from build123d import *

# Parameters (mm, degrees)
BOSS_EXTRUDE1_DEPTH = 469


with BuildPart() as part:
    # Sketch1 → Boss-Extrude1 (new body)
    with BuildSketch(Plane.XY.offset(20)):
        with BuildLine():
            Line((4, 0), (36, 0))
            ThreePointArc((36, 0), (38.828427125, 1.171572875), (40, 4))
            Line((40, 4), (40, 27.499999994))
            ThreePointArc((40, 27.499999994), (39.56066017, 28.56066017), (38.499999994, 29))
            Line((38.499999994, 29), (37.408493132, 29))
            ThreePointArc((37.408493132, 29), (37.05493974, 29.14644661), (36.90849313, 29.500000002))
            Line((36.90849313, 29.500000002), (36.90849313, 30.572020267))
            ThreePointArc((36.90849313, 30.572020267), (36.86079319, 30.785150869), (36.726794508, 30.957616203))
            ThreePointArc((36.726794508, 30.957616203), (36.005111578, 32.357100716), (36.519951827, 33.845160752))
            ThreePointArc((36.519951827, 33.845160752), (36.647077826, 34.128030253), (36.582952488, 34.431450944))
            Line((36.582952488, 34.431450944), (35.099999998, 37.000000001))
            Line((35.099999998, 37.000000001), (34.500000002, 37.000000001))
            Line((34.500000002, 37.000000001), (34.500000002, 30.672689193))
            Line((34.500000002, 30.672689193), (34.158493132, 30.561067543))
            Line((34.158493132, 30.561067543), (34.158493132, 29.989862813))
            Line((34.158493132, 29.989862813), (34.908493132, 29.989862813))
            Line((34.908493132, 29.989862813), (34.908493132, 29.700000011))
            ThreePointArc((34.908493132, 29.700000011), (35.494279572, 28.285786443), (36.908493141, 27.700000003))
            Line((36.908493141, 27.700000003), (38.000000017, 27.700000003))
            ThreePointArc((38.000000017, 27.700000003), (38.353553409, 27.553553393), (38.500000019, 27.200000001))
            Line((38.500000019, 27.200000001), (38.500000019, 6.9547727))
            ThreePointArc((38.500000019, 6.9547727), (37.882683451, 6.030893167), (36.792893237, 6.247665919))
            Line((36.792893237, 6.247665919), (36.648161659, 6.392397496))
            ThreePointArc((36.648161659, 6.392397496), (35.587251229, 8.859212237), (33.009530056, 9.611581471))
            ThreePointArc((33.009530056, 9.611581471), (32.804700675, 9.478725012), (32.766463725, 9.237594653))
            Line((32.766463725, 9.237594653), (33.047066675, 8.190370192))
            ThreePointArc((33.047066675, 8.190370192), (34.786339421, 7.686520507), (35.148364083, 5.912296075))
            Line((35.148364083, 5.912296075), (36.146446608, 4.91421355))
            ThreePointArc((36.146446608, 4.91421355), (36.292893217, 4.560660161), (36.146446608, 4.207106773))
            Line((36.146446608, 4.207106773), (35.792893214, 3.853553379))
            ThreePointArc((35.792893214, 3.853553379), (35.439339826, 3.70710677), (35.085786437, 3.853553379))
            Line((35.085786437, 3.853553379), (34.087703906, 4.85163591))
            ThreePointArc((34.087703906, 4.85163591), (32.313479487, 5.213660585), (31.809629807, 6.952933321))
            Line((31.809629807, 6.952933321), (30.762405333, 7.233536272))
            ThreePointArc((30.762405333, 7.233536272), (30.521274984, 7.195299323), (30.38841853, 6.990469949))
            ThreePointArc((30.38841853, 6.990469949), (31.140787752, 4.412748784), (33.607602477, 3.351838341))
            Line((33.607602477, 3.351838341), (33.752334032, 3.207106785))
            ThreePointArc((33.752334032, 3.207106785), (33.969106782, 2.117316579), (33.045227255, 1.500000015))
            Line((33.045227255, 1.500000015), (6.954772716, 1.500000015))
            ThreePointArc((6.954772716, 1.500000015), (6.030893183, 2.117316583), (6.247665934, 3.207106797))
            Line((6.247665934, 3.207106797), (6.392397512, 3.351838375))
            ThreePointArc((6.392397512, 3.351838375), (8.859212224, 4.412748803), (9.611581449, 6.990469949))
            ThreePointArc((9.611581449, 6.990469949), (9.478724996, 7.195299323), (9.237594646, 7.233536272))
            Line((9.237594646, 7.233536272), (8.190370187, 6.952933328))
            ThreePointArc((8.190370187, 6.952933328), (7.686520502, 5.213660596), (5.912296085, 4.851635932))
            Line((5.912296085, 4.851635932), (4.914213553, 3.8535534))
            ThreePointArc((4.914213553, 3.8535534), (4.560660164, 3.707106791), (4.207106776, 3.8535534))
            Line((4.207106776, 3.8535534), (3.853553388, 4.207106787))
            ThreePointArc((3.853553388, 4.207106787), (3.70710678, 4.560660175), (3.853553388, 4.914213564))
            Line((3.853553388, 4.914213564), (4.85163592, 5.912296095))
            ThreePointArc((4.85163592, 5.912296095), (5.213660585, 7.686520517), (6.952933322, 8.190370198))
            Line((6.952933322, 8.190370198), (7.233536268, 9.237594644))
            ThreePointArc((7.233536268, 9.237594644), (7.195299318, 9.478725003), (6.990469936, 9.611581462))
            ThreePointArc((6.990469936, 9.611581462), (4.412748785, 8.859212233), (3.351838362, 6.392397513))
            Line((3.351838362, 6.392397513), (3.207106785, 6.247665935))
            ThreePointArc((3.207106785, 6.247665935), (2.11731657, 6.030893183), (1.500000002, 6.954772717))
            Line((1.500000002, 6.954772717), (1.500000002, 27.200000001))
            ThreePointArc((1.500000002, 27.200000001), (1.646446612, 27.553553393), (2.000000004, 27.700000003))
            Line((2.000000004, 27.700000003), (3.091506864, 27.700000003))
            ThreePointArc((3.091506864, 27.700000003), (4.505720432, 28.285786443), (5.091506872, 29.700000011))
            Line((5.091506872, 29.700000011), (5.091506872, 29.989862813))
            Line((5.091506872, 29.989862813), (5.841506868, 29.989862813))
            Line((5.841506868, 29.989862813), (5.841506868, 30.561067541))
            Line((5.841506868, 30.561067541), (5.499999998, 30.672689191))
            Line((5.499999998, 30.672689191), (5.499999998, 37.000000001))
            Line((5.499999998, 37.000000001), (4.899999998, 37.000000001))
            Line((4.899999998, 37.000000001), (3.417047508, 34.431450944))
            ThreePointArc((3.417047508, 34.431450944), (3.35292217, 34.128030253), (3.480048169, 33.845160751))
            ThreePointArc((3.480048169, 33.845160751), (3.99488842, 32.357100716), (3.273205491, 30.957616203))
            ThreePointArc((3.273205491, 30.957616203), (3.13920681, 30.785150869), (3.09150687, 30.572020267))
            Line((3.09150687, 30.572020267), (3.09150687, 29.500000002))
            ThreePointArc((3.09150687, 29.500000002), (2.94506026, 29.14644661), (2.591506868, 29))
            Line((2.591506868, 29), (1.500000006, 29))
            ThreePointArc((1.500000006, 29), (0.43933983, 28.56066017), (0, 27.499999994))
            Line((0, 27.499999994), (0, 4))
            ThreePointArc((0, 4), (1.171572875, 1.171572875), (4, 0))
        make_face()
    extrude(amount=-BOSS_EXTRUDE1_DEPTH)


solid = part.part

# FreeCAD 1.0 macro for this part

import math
import FreeCAD as App
import Part
import Sketcher
from FreeCAD import Vector
Q = App.Units.Quantity

doc = App.newDocument("Part")
body = doc.addObject("PartDesign::Body", "Body")

sketch1 = body.newObject("Sketcher::SketchObject", "Sketch")
sketch1.AttachmentSupport = (doc.getObject("XY_Plane"), [""])
sketch1.MapMode = "FlatFace"
sketch1.AttachmentOffset = App.Placement(Vector(0, 0, 20), App.Rotation())
sketch1.addGeometry([
    Part.LineSegment(Vector(4, 0, 0), Vector(36, 0, 0)),
    Part.ArcOfCircle(Part.Circle(Vector(36, 4, 0), Vector(0, 0, 1), 4), math.radians(-90), math.radians(0)),
    Part.LineSegment(Vector(40, 4, 0), Vector(40, 27.5, 0)),
    Part.ArcOfCircle(Part.Circle(Vector(38.5, 27.5, 0), Vector(0, 0, 1), 1.5), math.radians(0), math.radians(90)),
    Part.LineSegment(Vector(38.5, 29, 0), Vector(37.41, 29, 0)),
    Part.ArcOfCircle(Part.Circle(Vector(37.41, 29.5, 0), Vector(0, 0, 1), 0.5), math.radians(180), math.radians(270)),
    Part.LineSegment(Vector(36.91, 29.5, 0), Vector(36.91, 30.57, 0)),
    Part.ArcOfCircle(Part.Circle(Vector(36.41, 30.57, 0), Vector(0, 0, 1), 0.5), math.radians(0), math.radians(50)),
    Part.ArcOfCircle(Part.Circle(Vector(38, 32.5, 0), Vector(0, 0, 1), 2), math.radians(138), math.radians(230)),
    Part.ArcOfCircle(Part.Circle(Vector(36.15, 34.18, 0), Vector(0, 0, 1), 0.5), math.radians(-42), math.radians(30)),
    Part.LineSegment(Vector(36.58, 34.43, 0), Vector(35.1, 37, 0)),
    Part.LineSegment(Vector(35.1, 37, 0), Vector(34.5, 37, 0)),
    Part.LineSegment(Vector(34.5, 37, 0), Vector(34.5, 30.67, 0)),
    Part.LineSegment(Vector(34.5, 30.67, 0), Vector(34.16, 30.56, 0)),
    Part.LineSegment(Vector(34.16, 30.56, 0), Vector(34.16, 29.99, 0)),
    Part.LineSegment(Vector(34.16, 29.99, 0), Vector(34.91, 29.99, 0)),
    Part.LineSegment(Vector(34.91, 29.99, 0), Vector(34.91, 29.7, 0)),
    Part.ArcOfCircle(Part.Circle(Vector(36.91, 29.7, 0), Vector(0, 0, 1), 2), math.radians(180), math.radians(270)),
    Part.LineSegment(Vector(36.91, 27.7, 0), Vector(38, 27.7, 0)),
    Part.ArcOfCircle(Part.Circle(Vector(38, 27.2, 0), Vector(0, 0, 1), 0.5), math.radians(0), math.radians(90)),
    Part.LineSegment(Vector(38.5, 27.2, 0), Vector(38.5, 6.95, 0)),
    Part.ArcOfCircle(Part.Circle(Vector(37.5, 6.95, 0), Vector(0, 0, 1), 1), math.radians(-135), math.radians(0)),
    Part.LineSegment(Vector(36.79, 6.25, 0), Vector(36.65, 6.39, 0)),
    Part.ArcOfCircle(Part.Circle(Vector(33.5, 6.5, 0), Vector(0, 0, 1), 3.15), math.radians(-2), math.radians(99)),
    Part.ArcOfCircle(Part.Circle(Vector(33.06, 9.32, 0), Vector(0, 0, 1), 0.3), math.radians(99), math.radians(195)),
    Part.LineSegment(Vector(32.77, 9.24, 0), Vector(33.05, 8.19, 0)),
    Part.ArcOfCircle(Part.Circle(Vector(33.5, 6.5, 0), Vector(0, 0, 1), 1.75), math.radians(-20), math.radians(105)),
    Part.LineSegment(Vector(35.15, 5.91, 0), Vector(36.15, 4.91, 0)),
    Part.ArcOfCircle(Part.Circle(Vector(35.79, 4.56, 0), Vector(0, 0, 1), 0.5), math.radians(-45), math.radians(45)),
    Part.LineSegment(Vector(36.15, 4.21, 0), Vector(35.79, 3.85, 0)),
    Part.ArcOfCircle(Part.Circle(Vector(35.44, 4.21, 0), Vector(0, 0, 1), 0.5), math.radians(-135), math.radians(-45)),
    Part.LineSegment(Vector(35.09, 3.85, 0), Vector(34.09, 4.85, 0)),
    Part.ArcOfCircle(Part.Circle(Vector(33.5, 6.5, 0), Vector(0, 0, 1), 1.75), math.radians(165), math.radians(290)),
    Part.LineSegment(Vector(31.81, 6.95, 0), Vector(30.76, 7.23, 0)),
    Part.ArcOfCircle(Part.Circle(Vector(30.68, 6.94, 0), Vector(0, 0, 1), 0.3), math.radians(75), math.radians(171)),
    Part.ArcOfCircle(Part.Circle(Vector(33.5, 6.5, 0), Vector(0, 0, 1), 3.15), math.radians(171), math.radians(272)),
    Part.LineSegment(Vector(33.61, 3.35, 0), Vector(33.75, 3.21, 0)),
    Part.ArcOfCircle(Part.Circle(Vector(33.05, 2.5, 0), Vector(0, 0, 1), 1), math.radians(-90), math.radians(45)),
    Part.LineSegment(Vector(33.05, 1.5, 0), Vector(6.95, 1.5, 0)),
    Part.ArcOfCircle(Part.Circle(Vector(6.95, 2.5, 0), Vector(0, 0, 1), 1), math.radians(135), math.radians(270)),
    Part.LineSegment(Vector(6.25, 3.21, 0), Vector(6.39, 3.35, 0)),
    Part.ArcOfCircle(Part.Circle(Vector(6.5, 6.5, 0), Vector(0, 0, 1), 3.15), math.radians(-92), math.radians(9)),
    Part.ArcOfCircle(Part.Circle(Vector(9.32, 6.94, 0), Vector(0, 0, 1), 0.3), math.radians(9), math.radians(105)),
    Part.LineSegment(Vector(9.24, 7.23, 0), Vector(8.19, 6.95, 0)),
    Part.ArcOfCircle(Part.Circle(Vector(6.5, 6.5, 0), Vector(0, 0, 1), 1.75), math.radians(-110), math.radians(15)),
    Part.LineSegment(Vector(5.91, 4.85, 0), Vector(4.91, 3.85, 0)),
    Part.ArcOfCircle(Part.Circle(Vector(4.56, 4.21, 0), Vector(0, 0, 1), 0.5), math.radians(-135), math.radians(-45)),
    Part.LineSegment(Vector(4.21, 3.85, 0), Vector(3.85, 4.21, 0)),
    Part.ArcOfCircle(Part.Circle(Vector(4.21, 4.56, 0), Vector(0, 0, 1), 0.5), math.radians(135), math.radians(225)),
    Part.LineSegment(Vector(3.85, 4.91, 0), Vector(4.85, 5.91, 0)),
    Part.ArcOfCircle(Part.Circle(Vector(6.5, 6.5, 0), Vector(0, 0, 1), 1.75), math.radians(75), math.radians(200)),
    Part.LineSegment(Vector(6.95, 8.19, 0), Vector(7.23, 9.24, 0)),
    Part.ArcOfCircle(Part.Circle(Vector(6.94, 9.32, 0), Vector(0, 0, 1), 0.3), math.radians(-15), math.radians(81)),
    Part.ArcOfCircle(Part.Circle(Vector(6.5, 6.5, 0), Vector(0, 0, 1), 3.15), math.radians(81), math.radians(182)),
    Part.LineSegment(Vector(3.35, 6.39, 0), Vector(3.21, 6.25, 0)),
    Part.ArcOfCircle(Part.Circle(Vector(2.5, 6.95, 0), Vector(0, 0, 1), 1), math.radians(180), math.radians(315)),
    Part.LineSegment(Vector(1.5, 6.95, 0), Vector(1.5, 27.2, 0)),
    Part.ArcOfCircle(Part.Circle(Vector(2, 27.2, 0), Vector(0, 0, 1), 0.5), math.radians(90), math.radians(180)),
    Part.LineSegment(Vector(2, 27.7, 0), Vector(3.09, 27.7, 0)),
    Part.ArcOfCircle(Part.Circle(Vector(3.09, 29.7, 0), Vector(0, 0, 1), 2), math.radians(-90), math.radians(0)),
    Part.LineSegment(Vector(5.09, 29.7, 0), Vector(5.09, 29.99, 0)),
    Part.LineSegment(Vector(5.09, 29.99, 0), Vector(5.84, 29.99, 0)),
    Part.LineSegment(Vector(5.84, 29.99, 0), Vector(5.84, 30.56, 0)),
    Part.LineSegment(Vector(5.84, 30.56, 0), Vector(5.5, 30.67, 0)),
    Part.LineSegment(Vector(5.5, 30.67, 0), Vector(5.5, 37, 0)),
    Part.LineSegment(Vector(5.5, 37, 0), Vector(4.9, 37, 0)),
    Part.LineSegment(Vector(4.9, 37, 0), Vector(3.42, 34.43, 0)),
    Part.ArcOfCircle(Part.Circle(Vector(3.85, 34.18, 0), Vector(0, 0, 1), 0.5), math.radians(150), math.radians(222)),
    Part.ArcOfCircle(Part.Circle(Vector(2, 32.5, 0), Vector(0, 0, 1), 2), math.radians(-50), math.radians(42)),
    Part.ArcOfCircle(Part.Circle(Vector(3.59, 30.57, 0), Vector(0, 0, 1), 0.5), math.radians(130), math.radians(180)),
    Part.LineSegment(Vector(3.09, 30.57, 0), Vector(3.09, 29.5, 0)),
    Part.ArcOfCircle(Part.Circle(Vector(2.59, 29.5, 0), Vector(0, 0, 1), 0.5), math.radians(-90), math.radians(0)),
    Part.LineSegment(Vector(2.59, 29, 0), Vector(1.5, 29, 0)),
    Part.ArcOfCircle(Part.Circle(Vector(1.5, 27.5, 0), Vector(0, 0, 1), 1.5), math.radians(90), math.radians(180)),
    Part.LineSegment(Vector(0, 27.5, 0), Vector(0, 4, 0)),
    Part.ArcOfCircle(Part.Circle(Vector(4, 4, 0), Vector(0, 0, 1), 4), math.radians(180), math.radians(270)),
], False)
sketch1.addConstraint([
    Sketcher.Constraint("Tangent", 0, 2, 1, 1),
    Sketcher.Constraint("Tangent", 1, 2, 2, 1),
    Sketcher.Constraint("Tangent", 2, 2, 3, 1),
    Sketcher.Constraint("Tangent", 3, 2, 4, 1),
    Sketcher.Constraint("Tangent", 4, 2, 5, 2),
    Sketcher.Constraint("Tangent", 5, 1, 6, 1),
    Sketcher.Constraint("Tangent", 6, 2, 7, 1),
    Sketcher.Constraint("Tangent", 7, 2, 8, 2),
    Sketcher.Constraint("Tangent", 8, 1, 9, 1),
    Sketcher.Constraint("Tangent", 9, 2, 10, 1),
    Sketcher.Constraint("Coincident", 10, 2, 11, 1),
    Sketcher.Constraint("Coincident", 11, 2, 12, 1),
    Sketcher.Constraint("Coincident", 12, 2, 13, 1),
    Sketcher.Constraint("Coincident", 13, 2, 14, 1),
    Sketcher.Constraint("Coincident", 14, 2, 15, 1),
    Sketcher.Constraint("Coincident", 15, 2, 16, 1),
    Sketcher.Constraint("Tangent", 16, 2, 17, 1),
    Sketcher.Constraint("Tangent", 17, 2, 18, 1),
    Sketcher.Constraint("Tangent", 18, 2, 19, 2),
    Sketcher.Constraint("Tangent", 19, 1, 20, 1),
    Sketcher.Constraint("Tangent", 20, 2, 21, 2),
    Sketcher.Constraint("Tangent", 21, 1, 22, 1),
    Sketcher.Constraint("Coincident", 22, 2, 23, 1),
    Sketcher.Constraint("Tangent", 23, 2, 24, 1),
    Sketcher.Constraint("Tangent", 24, 2, 25, 1),
    Sketcher.Constraint("Coincident", 25, 2, 26, 2),
    Sketcher.Constraint("Coincident", 26, 1, 27, 1),
    Sketcher.Constraint("Tangent", 27, 2, 28, 2),
    Sketcher.Constraint("Tangent", 28, 1, 29, 1),
    Sketcher.Constraint("Tangent", 29, 2, 30, 2),
    Sketcher.Constraint("Tangent", 30, 1, 31, 1),
    Sketcher.Constraint("Coincident", 31, 2, 32, 2),
    Sketcher.Constraint("Coincident", 32, 1, 33, 1),
    Sketcher.Constraint("Tangent", 33, 2, 34, 1),
    Sketcher.Constraint("Tangent", 34, 2, 35, 1),
    Sketcher.Constraint("Coincident", 35, 2, 36, 1),
    Sketcher.Constraint("Tangent", 36, 2, 37, 2),
    Sketcher.Constraint("Tangent", 37, 1, 38, 1),
    Sketcher.Constraint("Tangent", 38, 2, 39, 2),
    Sketcher.Constraint("Tangent", 39, 1, 40, 1),
    Sketcher.Constraint("Coincident", 40, 2, 41, 1),
    Sketcher.Constraint("Tangent", 41, 2, 42, 1),
    Sketcher.Constraint("Tangent", 42, 2, 43, 1),
    Sketcher.Constraint("Coincident", 43, 2, 44, 2),
    Sketcher.Constraint("Coincident", 44, 1, 45, 1),
    Sketcher.Constraint("Tangent", 45, 2, 46, 2),
    Sketcher.Constraint("Tangent", 46, 1, 47, 1),
    Sketcher.Constraint("Tangent", 47, 2, 48, 2),
    Sketcher.Constraint("Tangent", 48, 1, 49, 1),
    Sketcher.Constraint("Coincident", 49, 2, 50, 2),
    Sketcher.Constraint("Coincident", 50, 1, 51, 1),
    Sketcher.Constraint("Tangent", 51, 2, 52, 1),
    Sketcher.Constraint("Tangent", 52, 2, 53, 1),
    Sketcher.Constraint("Coincident", 53, 2, 54, 1),
    Sketcher.Constraint("Tangent", 54, 2, 55, 2),
    Sketcher.Constraint("Tangent", 55, 1, 56, 1),
    Sketcher.Constraint("Tangent", 56, 2, 57, 2),
    Sketcher.Constraint("Tangent", 57, 1, 58, 1),
    Sketcher.Constraint("Tangent", 58, 2, 59, 1),
    Sketcher.Constraint("Tangent", 59, 2, 60, 1),
    Sketcher.Constraint("Coincident", 60, 2, 61, 1),
    Sketcher.Constraint("Coincident", 61, 2, 62, 1),
    Sketcher.Constraint("Coincident", 62, 2, 63, 1),
    Sketcher.Constraint("Coincident", 63, 2, 64, 1),
    Sketcher.Constraint("Coincident", 64, 2, 65, 1),
    Sketcher.Constraint("Coincident", 65, 2, 66, 1),
    Sketcher.Constraint("Tangent", 66, 2, 67, 1),
    Sketcher.Constraint("Tangent", 67, 2, 68, 2),
    Sketcher.Constraint("Tangent", 68, 1, 69, 1),
    Sketcher.Constraint("Tangent", 69, 2, 70, 1),
    Sketcher.Constraint("Tangent", 70, 2, 71, 2),
    Sketcher.Constraint("Tangent", 71, 1, 72, 1),
    Sketcher.Constraint("Tangent", 72, 2, 73, 1),
    Sketcher.Constraint("Tangent", 73, 2, 74, 1),
    Sketcher.Constraint("Tangent", 74, 2, 75, 1),
    Sketcher.Constraint("Tangent", 75, 2, 0, 1),
    Sketcher.Constraint("Horizontal", 0),
    Sketcher.Constraint("Vertical", 2),
    Sketcher.Constraint("Horizontal", 4),
    Sketcher.Constraint("Vertical", 6),
    Sketcher.Constraint("Horizontal", 11),
    Sketcher.Constraint("Vertical", 12),
    Sketcher.Constraint("Vertical", 14),
    Sketcher.Constraint("Horizontal", 15),
    Sketcher.Constraint("Vertical", 16),
    Sketcher.Constraint("Horizontal", 18),
    Sketcher.Constraint("Vertical", 20),
    Sketcher.Constraint("Horizontal", 38),
    Sketcher.Constraint("Vertical", 56),
    Sketcher.Constraint("Horizontal", 58),
    Sketcher.Constraint("Vertical", 60),
    Sketcher.Constraint("Horizontal", 61),
    Sketcher.Constraint("Vertical", 62),
    Sketcher.Constraint("Vertical", 64),
    Sketcher.Constraint("Horizontal", 65),
    Sketcher.Constraint("Vertical", 70),
    Sketcher.Constraint("Horizontal", 72),
    Sketcher.Constraint("Vertical", 74),
    Sketcher.Constraint("Coincident", 26, 3, 23, 3),
    Sketcher.Constraint("Coincident", 32, 3, 23, 3),
    Sketcher.Constraint("Coincident", 35, 3, 23, 3),
    Sketcher.Constraint("Coincident", 44, 3, 41, 3),
    Sketcher.Constraint("Coincident", 50, 3, 41, 3),
    Sketcher.Constraint("Coincident", 53, 3, 41, 3),
    Sketcher.Constraint("Equal", 5, 7),
    Sketcher.Constraint("Equal", 7, 9),
    Sketcher.Constraint("Equal", 8, 17),
    Sketcher.Constraint("Equal", 9, 19),
    Sketcher.Constraint("Equal", 19, 28),
    Sketcher.Constraint("Equal", 28, 30),
    Sketcher.Constraint("Equal", 26, 32),
    Sketcher.Constraint("Equal", 24, 34),
    Sketcher.Constraint("Equal", 23, 35),
    Sketcher.Constraint("Equal", 21, 37),
    Sketcher.Constraint("Equal", 37, 39),
    Sketcher.Constraint("Equal", 35, 41),
    Sketcher.Constraint("Equal", 34, 42),
    Sketcher.Constraint("Equal", 32, 44),
    Sketcher.Constraint("Equal", 30, 46),
    Sketcher.Constraint("Equal", 46, 48),
    Sketcher.Constraint("Equal", 44, 50),
    Sketcher.Constraint("Equal", 42, 52),
    Sketcher.Constraint("Equal", 41, 53),
    Sketcher.Constraint("Equal", 39, 55),
    Sketcher.Constraint("Equal", 48, 57),
    Sketcher.Constraint("Equal", 17, 59),
    Sketcher.Constraint("Equal", 57, 67),
    Sketcher.Constraint("Equal", 59, 68),
    Sketcher.Constraint("Equal", 67, 69),
    Sketcher.Constraint("Equal", 69, 71),
    Sketcher.Constraint("Equal", 3, 73),
    Sketcher.Constraint("Equal", 1, 75),
    Sketcher.Constraint("PointOnObject", 0, 2, -1),
    Sketcher.Constraint("PointOnObject", 73, 2, -2),
    Sketcher.Constraint("Parallel", 22, 27),
    Sketcher.Constraint("Perpendicular", 27, 29),
    Sketcher.Constraint("Perpendicular", 29, 31),
    Sketcher.Constraint("Parallel", 31, 36),
    Sketcher.Constraint("Perpendicular", 36, 40),
    Sketcher.Constraint("Perpendicular", 25, 43),
    Sketcher.Constraint("Parallel", 40, 45),
    Sketcher.Constraint("Perpendicular", 45, 47),
    Sketcher.Constraint("Perpendicular", 47, 49),
    Sketcher.Constraint("Perpendicular", 33, 51),
    Sketcher.Constraint("Parallel", 49, 54),
    Sketcher.Constraint("Horizontal", 35, 3, 41, 3),
    Sketcher.Constraint("Horizontal", 34, 3, 42, 3),
    Sketcher.Constraint("Horizontal", 30, 3, 46, 3),
    Sketcher.Constraint("Horizontal", 28, 3, 48, 3),
    Sketcher.Constraint("Horizontal", 24, 3, 52, 3),
    Sketcher.Constraint("Horizontal", 21, 3, 55, 3),
    Sketcher.Constraint("Horizontal", 19, 3, 57, 3),
    Sketcher.Constraint("Horizontal", 9, 3, 67, 3),
    Sketcher.Constraint("Horizontal", 8, 3, 68, 3),
    Sketcher.Constraint("Horizontal", 7, 3, 69, 3),
    Sketcher.Constraint("Horizontal", 5, 3, 71, 3),
    Sketcher.Constraint("Horizontal", 46, 3, 28, 1),
    Sketcher.Constraint("Horizontal", 29, 2, 30, 1),
    Sketcher.Constraint("Horizontal", 35, 2, 40, 2),
    Sketcher.Constraint("Horizontal", 33, 2, 42, 2),
    Sketcher.Constraint("Horizontal", 31, 2, 44, 1),
    Sketcher.Constraint("Horizontal", 22, 2, 53, 2),
    Sketcher.Constraint("Horizontal", 15, 2, 60, 2),
    Sketcher.Constraint("Horizontal", 13, 2, 62, 2),
    Sketcher.Constraint("Horizontal", 12, 2, 63, 2),
    Sketcher.Constraint("Horizontal", 11, 2, 64, 2),
    Sketcher.Constraint("Horizontal", 9, 2, 66, 2),
    Sketcher.Constraint("Vertical", 8, 3, 19, 3),
    Sketcher.Constraint("Vertical", 57, 3, 68, 3),
    Sketcher.Constraint("Vertical", 17, 3, 5, 1),
    Sketcher.Constraint("Vertical", 3, 2, 19, 1),
    Sketcher.Constraint("Vertical", 73, 3, 55, 1),
    Sketcher.Constraint("Vertical", 58, 2, 69, 2),
    Sketcher.Constraint("Equal", 15, 61),
    Sketcher.Constraint("Equal", 11, 65),
    Sketcher.Constraint("Equal", 27, 31),
    Sketcher.Constraint("Equal", 25, 33),
    Sketcher.Constraint("Equal", 22, 36),
    Sketcher.Constraint("Radius", 1, 4.0),
    Sketcher.Constraint("Radius", 8, 2.0),
    Sketcher.Constraint("Radius", 21, 1.0),
    Sketcher.Constraint("Radius", 3, 1.5),
    Sketcher.Constraint("Radius", 5, 0.5),
    Sketcher.Constraint("Radius", 24, 0.3),
    Sketcher.Constraint("DistanceX", 0, 1, 0, 2, 32.0),
    Sketcher.Constraint("Angle", 10, Q("120 deg")),
    Sketcher.Constraint("Angle", 25, Q("-75 deg")),
    Sketcher.Constraint("Radius", 23, 3.15),
    Sketcher.Constraint("Radius", 26, 1.75),
    Sketcher.Constraint("DistanceX", 11, 2, 11, 1, 0.6),
    Sketcher.Constraint("DistanceY", 2, 1, 2, 2, 23.5),
    Sketcher.Constraint("DistanceY", -1, 1, 10, 2, 37.0),
    Sketcher.Constraint("Angle", 13, Q("-161.9 deg")),
    Sketcher.Constraint("DistanceX", 15, 1, 15, 2, 0.75),
    Sketcher.Constraint("DistanceY", -1, 1, 8, 3, 32.5),
    Sketcher.Constraint("DistanceY", -1, 1, 17, 3, 29.7),
    Sketcher.Constraint("DistanceX", -1, 1, 23, 3, 33.5),
    Sketcher.Constraint("DistanceY", -1, 1, 23, 3, 6.5),
    Sketcher.Constraint("DistanceY", -1, 1, 37, 3, 2.5),
    Sketcher.Constraint("DistanceX", -1, 1, 10, 2, 35.1),
    Sketcher.Constraint("Distance", 27, 1.411502),
    Sketcher.Constraint("DistanceY", 6, 1, 6, 2, 1.07202),
    Sketcher.Constraint("DistanceY", 12, 2, 12, 1, 6.327311),
    Sketcher.Constraint("Distance", 22, 0.204681),
    Sketcher.Constraint("DistanceY", 14, 2, 14, 1, 0.571205),
    Sketcher.Constraint("DistanceX", -1, 1, 24, 3, 33.056241),
])
pad1 = body.newObject("PartDesign::Pad", "Pad")
pad1.Profile = sketch1
pad1.Length = 469
pad1.Reversed = True

doc.recompute()
